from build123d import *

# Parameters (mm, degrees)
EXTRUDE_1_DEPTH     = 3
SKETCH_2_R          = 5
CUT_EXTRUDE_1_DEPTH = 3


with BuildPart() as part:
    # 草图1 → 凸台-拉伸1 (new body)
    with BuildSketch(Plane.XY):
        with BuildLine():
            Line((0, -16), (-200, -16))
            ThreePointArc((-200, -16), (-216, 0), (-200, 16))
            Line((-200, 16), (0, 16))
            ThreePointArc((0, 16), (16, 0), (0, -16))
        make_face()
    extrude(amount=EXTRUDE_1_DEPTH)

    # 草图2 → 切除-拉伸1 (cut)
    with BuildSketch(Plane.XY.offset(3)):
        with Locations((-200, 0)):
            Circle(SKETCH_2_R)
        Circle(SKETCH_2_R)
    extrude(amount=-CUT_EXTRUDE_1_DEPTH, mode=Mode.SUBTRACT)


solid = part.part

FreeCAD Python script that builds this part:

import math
import FreeCAD as App
import Part
import Sketcher

V = App.Vector

doc = App.newDocument("Part")
body = doc.addObject("PartDesign::Body", "Body")

sketch1 = doc.addObject("Sketcher::SketchObject", "Sketch")
body.addObject(sketch1)
sketch1.AttachmentSupport = (doc.XY_Plane, [""])
sketch1.MapMode = "FlatFace"
sketch1.addGeometry(Part.LineSegment(V(-200, -16, 0), V(0, -16, 0)), False)
sketch1.addGeometry(Part.ArcOfCircle(Part.Circle(V(0, 0, 0), V(0, 0, 1), 16), math.radians(-90), math.radians(90)), False)
sketch1.addGeometry(Part.LineSegment(V(0, 16, 0), V(-200, 16, 0)), False)
sketch1.addGeometry(Part.ArcOfCircle(Part.Circle(V(-200, 0, 0), V(0, 0, 1), 16), math.radians(90), math.radians(270)), False)
sketch1.addConstraint(Sketcher.Constraint("Tangent", 0, 2, 1, 1))
sketch1.addConstraint(Sketcher.Constraint("Tangent", 1, 2, 2, 1))
sketch1.addConstraint(Sketcher.Constraint("Tangent", 2, 2, 3, 1))
sketch1.addConstraint(Sketcher.Constraint("Tangent", 3, 2, 0, 1))
sketch1.addConstraint(Sketcher.Constraint("Horizontal", 0))
sketch1.addConstraint(Sketcher.Constraint("Horizontal", 2))
sketch1.addConstraint(Sketcher.Constraint("Coincident", 1, 3, -1, 1))
sketch1.addConstraint(Sketcher.Constraint("Radius", 1, 16.0))
sketch1.addConstraint(Sketcher.Constraint("DistanceX", 0, 1, 0, 2, 200.0))
pad1 = doc.addObject("PartDesign::Pad", "Pad")
body.addObject(pad1)
pad1.Profile = sketch1
pad1.Length = 3

sketch2 = doc.addObject("Sketcher::SketchObject", "Sketch001")
body.addObject(sketch2)
sketch2.AttachmentSupport = (doc.XY_Plane, [""])
sketch2.MapMode = "FlatFace"
sketch2.AttachmentOffset = App.Placement(V(0, 0, 3), App.Rotation())
sketch2.addGeometry(Part.Circle(V(-200, 0, 0), V(0, 0, 1), 5), False)
sketch2.addGeometry(Part.Circle(V(0, 0, 0), V(0, 0, 1), 5), False)
sketch2.addConstraint(Sketcher.Constraint("Coincident", 1, 3, -1, 1))
sketch2.addConstraint(Sketcher.Constraint("Equal", 0, 1))
sketch2.addConstraint(Sketcher.Constraint("PointOnObject", 0, 3, -1))
sketch2.addConstraint(Sketcher.Constraint("Diameter", 0, 10.0))
sketch2.addConstraint(Sketcher.Constraint("DistanceX", 0, 3, -1, 1, 200.0))
pocket1 = doc.addObject("PartDesign::Pocket", "Pocket")
body.addObject(pocket1)
pocket1.Profile = sketch2
pocket1.Length = 3

doc.recompute()
